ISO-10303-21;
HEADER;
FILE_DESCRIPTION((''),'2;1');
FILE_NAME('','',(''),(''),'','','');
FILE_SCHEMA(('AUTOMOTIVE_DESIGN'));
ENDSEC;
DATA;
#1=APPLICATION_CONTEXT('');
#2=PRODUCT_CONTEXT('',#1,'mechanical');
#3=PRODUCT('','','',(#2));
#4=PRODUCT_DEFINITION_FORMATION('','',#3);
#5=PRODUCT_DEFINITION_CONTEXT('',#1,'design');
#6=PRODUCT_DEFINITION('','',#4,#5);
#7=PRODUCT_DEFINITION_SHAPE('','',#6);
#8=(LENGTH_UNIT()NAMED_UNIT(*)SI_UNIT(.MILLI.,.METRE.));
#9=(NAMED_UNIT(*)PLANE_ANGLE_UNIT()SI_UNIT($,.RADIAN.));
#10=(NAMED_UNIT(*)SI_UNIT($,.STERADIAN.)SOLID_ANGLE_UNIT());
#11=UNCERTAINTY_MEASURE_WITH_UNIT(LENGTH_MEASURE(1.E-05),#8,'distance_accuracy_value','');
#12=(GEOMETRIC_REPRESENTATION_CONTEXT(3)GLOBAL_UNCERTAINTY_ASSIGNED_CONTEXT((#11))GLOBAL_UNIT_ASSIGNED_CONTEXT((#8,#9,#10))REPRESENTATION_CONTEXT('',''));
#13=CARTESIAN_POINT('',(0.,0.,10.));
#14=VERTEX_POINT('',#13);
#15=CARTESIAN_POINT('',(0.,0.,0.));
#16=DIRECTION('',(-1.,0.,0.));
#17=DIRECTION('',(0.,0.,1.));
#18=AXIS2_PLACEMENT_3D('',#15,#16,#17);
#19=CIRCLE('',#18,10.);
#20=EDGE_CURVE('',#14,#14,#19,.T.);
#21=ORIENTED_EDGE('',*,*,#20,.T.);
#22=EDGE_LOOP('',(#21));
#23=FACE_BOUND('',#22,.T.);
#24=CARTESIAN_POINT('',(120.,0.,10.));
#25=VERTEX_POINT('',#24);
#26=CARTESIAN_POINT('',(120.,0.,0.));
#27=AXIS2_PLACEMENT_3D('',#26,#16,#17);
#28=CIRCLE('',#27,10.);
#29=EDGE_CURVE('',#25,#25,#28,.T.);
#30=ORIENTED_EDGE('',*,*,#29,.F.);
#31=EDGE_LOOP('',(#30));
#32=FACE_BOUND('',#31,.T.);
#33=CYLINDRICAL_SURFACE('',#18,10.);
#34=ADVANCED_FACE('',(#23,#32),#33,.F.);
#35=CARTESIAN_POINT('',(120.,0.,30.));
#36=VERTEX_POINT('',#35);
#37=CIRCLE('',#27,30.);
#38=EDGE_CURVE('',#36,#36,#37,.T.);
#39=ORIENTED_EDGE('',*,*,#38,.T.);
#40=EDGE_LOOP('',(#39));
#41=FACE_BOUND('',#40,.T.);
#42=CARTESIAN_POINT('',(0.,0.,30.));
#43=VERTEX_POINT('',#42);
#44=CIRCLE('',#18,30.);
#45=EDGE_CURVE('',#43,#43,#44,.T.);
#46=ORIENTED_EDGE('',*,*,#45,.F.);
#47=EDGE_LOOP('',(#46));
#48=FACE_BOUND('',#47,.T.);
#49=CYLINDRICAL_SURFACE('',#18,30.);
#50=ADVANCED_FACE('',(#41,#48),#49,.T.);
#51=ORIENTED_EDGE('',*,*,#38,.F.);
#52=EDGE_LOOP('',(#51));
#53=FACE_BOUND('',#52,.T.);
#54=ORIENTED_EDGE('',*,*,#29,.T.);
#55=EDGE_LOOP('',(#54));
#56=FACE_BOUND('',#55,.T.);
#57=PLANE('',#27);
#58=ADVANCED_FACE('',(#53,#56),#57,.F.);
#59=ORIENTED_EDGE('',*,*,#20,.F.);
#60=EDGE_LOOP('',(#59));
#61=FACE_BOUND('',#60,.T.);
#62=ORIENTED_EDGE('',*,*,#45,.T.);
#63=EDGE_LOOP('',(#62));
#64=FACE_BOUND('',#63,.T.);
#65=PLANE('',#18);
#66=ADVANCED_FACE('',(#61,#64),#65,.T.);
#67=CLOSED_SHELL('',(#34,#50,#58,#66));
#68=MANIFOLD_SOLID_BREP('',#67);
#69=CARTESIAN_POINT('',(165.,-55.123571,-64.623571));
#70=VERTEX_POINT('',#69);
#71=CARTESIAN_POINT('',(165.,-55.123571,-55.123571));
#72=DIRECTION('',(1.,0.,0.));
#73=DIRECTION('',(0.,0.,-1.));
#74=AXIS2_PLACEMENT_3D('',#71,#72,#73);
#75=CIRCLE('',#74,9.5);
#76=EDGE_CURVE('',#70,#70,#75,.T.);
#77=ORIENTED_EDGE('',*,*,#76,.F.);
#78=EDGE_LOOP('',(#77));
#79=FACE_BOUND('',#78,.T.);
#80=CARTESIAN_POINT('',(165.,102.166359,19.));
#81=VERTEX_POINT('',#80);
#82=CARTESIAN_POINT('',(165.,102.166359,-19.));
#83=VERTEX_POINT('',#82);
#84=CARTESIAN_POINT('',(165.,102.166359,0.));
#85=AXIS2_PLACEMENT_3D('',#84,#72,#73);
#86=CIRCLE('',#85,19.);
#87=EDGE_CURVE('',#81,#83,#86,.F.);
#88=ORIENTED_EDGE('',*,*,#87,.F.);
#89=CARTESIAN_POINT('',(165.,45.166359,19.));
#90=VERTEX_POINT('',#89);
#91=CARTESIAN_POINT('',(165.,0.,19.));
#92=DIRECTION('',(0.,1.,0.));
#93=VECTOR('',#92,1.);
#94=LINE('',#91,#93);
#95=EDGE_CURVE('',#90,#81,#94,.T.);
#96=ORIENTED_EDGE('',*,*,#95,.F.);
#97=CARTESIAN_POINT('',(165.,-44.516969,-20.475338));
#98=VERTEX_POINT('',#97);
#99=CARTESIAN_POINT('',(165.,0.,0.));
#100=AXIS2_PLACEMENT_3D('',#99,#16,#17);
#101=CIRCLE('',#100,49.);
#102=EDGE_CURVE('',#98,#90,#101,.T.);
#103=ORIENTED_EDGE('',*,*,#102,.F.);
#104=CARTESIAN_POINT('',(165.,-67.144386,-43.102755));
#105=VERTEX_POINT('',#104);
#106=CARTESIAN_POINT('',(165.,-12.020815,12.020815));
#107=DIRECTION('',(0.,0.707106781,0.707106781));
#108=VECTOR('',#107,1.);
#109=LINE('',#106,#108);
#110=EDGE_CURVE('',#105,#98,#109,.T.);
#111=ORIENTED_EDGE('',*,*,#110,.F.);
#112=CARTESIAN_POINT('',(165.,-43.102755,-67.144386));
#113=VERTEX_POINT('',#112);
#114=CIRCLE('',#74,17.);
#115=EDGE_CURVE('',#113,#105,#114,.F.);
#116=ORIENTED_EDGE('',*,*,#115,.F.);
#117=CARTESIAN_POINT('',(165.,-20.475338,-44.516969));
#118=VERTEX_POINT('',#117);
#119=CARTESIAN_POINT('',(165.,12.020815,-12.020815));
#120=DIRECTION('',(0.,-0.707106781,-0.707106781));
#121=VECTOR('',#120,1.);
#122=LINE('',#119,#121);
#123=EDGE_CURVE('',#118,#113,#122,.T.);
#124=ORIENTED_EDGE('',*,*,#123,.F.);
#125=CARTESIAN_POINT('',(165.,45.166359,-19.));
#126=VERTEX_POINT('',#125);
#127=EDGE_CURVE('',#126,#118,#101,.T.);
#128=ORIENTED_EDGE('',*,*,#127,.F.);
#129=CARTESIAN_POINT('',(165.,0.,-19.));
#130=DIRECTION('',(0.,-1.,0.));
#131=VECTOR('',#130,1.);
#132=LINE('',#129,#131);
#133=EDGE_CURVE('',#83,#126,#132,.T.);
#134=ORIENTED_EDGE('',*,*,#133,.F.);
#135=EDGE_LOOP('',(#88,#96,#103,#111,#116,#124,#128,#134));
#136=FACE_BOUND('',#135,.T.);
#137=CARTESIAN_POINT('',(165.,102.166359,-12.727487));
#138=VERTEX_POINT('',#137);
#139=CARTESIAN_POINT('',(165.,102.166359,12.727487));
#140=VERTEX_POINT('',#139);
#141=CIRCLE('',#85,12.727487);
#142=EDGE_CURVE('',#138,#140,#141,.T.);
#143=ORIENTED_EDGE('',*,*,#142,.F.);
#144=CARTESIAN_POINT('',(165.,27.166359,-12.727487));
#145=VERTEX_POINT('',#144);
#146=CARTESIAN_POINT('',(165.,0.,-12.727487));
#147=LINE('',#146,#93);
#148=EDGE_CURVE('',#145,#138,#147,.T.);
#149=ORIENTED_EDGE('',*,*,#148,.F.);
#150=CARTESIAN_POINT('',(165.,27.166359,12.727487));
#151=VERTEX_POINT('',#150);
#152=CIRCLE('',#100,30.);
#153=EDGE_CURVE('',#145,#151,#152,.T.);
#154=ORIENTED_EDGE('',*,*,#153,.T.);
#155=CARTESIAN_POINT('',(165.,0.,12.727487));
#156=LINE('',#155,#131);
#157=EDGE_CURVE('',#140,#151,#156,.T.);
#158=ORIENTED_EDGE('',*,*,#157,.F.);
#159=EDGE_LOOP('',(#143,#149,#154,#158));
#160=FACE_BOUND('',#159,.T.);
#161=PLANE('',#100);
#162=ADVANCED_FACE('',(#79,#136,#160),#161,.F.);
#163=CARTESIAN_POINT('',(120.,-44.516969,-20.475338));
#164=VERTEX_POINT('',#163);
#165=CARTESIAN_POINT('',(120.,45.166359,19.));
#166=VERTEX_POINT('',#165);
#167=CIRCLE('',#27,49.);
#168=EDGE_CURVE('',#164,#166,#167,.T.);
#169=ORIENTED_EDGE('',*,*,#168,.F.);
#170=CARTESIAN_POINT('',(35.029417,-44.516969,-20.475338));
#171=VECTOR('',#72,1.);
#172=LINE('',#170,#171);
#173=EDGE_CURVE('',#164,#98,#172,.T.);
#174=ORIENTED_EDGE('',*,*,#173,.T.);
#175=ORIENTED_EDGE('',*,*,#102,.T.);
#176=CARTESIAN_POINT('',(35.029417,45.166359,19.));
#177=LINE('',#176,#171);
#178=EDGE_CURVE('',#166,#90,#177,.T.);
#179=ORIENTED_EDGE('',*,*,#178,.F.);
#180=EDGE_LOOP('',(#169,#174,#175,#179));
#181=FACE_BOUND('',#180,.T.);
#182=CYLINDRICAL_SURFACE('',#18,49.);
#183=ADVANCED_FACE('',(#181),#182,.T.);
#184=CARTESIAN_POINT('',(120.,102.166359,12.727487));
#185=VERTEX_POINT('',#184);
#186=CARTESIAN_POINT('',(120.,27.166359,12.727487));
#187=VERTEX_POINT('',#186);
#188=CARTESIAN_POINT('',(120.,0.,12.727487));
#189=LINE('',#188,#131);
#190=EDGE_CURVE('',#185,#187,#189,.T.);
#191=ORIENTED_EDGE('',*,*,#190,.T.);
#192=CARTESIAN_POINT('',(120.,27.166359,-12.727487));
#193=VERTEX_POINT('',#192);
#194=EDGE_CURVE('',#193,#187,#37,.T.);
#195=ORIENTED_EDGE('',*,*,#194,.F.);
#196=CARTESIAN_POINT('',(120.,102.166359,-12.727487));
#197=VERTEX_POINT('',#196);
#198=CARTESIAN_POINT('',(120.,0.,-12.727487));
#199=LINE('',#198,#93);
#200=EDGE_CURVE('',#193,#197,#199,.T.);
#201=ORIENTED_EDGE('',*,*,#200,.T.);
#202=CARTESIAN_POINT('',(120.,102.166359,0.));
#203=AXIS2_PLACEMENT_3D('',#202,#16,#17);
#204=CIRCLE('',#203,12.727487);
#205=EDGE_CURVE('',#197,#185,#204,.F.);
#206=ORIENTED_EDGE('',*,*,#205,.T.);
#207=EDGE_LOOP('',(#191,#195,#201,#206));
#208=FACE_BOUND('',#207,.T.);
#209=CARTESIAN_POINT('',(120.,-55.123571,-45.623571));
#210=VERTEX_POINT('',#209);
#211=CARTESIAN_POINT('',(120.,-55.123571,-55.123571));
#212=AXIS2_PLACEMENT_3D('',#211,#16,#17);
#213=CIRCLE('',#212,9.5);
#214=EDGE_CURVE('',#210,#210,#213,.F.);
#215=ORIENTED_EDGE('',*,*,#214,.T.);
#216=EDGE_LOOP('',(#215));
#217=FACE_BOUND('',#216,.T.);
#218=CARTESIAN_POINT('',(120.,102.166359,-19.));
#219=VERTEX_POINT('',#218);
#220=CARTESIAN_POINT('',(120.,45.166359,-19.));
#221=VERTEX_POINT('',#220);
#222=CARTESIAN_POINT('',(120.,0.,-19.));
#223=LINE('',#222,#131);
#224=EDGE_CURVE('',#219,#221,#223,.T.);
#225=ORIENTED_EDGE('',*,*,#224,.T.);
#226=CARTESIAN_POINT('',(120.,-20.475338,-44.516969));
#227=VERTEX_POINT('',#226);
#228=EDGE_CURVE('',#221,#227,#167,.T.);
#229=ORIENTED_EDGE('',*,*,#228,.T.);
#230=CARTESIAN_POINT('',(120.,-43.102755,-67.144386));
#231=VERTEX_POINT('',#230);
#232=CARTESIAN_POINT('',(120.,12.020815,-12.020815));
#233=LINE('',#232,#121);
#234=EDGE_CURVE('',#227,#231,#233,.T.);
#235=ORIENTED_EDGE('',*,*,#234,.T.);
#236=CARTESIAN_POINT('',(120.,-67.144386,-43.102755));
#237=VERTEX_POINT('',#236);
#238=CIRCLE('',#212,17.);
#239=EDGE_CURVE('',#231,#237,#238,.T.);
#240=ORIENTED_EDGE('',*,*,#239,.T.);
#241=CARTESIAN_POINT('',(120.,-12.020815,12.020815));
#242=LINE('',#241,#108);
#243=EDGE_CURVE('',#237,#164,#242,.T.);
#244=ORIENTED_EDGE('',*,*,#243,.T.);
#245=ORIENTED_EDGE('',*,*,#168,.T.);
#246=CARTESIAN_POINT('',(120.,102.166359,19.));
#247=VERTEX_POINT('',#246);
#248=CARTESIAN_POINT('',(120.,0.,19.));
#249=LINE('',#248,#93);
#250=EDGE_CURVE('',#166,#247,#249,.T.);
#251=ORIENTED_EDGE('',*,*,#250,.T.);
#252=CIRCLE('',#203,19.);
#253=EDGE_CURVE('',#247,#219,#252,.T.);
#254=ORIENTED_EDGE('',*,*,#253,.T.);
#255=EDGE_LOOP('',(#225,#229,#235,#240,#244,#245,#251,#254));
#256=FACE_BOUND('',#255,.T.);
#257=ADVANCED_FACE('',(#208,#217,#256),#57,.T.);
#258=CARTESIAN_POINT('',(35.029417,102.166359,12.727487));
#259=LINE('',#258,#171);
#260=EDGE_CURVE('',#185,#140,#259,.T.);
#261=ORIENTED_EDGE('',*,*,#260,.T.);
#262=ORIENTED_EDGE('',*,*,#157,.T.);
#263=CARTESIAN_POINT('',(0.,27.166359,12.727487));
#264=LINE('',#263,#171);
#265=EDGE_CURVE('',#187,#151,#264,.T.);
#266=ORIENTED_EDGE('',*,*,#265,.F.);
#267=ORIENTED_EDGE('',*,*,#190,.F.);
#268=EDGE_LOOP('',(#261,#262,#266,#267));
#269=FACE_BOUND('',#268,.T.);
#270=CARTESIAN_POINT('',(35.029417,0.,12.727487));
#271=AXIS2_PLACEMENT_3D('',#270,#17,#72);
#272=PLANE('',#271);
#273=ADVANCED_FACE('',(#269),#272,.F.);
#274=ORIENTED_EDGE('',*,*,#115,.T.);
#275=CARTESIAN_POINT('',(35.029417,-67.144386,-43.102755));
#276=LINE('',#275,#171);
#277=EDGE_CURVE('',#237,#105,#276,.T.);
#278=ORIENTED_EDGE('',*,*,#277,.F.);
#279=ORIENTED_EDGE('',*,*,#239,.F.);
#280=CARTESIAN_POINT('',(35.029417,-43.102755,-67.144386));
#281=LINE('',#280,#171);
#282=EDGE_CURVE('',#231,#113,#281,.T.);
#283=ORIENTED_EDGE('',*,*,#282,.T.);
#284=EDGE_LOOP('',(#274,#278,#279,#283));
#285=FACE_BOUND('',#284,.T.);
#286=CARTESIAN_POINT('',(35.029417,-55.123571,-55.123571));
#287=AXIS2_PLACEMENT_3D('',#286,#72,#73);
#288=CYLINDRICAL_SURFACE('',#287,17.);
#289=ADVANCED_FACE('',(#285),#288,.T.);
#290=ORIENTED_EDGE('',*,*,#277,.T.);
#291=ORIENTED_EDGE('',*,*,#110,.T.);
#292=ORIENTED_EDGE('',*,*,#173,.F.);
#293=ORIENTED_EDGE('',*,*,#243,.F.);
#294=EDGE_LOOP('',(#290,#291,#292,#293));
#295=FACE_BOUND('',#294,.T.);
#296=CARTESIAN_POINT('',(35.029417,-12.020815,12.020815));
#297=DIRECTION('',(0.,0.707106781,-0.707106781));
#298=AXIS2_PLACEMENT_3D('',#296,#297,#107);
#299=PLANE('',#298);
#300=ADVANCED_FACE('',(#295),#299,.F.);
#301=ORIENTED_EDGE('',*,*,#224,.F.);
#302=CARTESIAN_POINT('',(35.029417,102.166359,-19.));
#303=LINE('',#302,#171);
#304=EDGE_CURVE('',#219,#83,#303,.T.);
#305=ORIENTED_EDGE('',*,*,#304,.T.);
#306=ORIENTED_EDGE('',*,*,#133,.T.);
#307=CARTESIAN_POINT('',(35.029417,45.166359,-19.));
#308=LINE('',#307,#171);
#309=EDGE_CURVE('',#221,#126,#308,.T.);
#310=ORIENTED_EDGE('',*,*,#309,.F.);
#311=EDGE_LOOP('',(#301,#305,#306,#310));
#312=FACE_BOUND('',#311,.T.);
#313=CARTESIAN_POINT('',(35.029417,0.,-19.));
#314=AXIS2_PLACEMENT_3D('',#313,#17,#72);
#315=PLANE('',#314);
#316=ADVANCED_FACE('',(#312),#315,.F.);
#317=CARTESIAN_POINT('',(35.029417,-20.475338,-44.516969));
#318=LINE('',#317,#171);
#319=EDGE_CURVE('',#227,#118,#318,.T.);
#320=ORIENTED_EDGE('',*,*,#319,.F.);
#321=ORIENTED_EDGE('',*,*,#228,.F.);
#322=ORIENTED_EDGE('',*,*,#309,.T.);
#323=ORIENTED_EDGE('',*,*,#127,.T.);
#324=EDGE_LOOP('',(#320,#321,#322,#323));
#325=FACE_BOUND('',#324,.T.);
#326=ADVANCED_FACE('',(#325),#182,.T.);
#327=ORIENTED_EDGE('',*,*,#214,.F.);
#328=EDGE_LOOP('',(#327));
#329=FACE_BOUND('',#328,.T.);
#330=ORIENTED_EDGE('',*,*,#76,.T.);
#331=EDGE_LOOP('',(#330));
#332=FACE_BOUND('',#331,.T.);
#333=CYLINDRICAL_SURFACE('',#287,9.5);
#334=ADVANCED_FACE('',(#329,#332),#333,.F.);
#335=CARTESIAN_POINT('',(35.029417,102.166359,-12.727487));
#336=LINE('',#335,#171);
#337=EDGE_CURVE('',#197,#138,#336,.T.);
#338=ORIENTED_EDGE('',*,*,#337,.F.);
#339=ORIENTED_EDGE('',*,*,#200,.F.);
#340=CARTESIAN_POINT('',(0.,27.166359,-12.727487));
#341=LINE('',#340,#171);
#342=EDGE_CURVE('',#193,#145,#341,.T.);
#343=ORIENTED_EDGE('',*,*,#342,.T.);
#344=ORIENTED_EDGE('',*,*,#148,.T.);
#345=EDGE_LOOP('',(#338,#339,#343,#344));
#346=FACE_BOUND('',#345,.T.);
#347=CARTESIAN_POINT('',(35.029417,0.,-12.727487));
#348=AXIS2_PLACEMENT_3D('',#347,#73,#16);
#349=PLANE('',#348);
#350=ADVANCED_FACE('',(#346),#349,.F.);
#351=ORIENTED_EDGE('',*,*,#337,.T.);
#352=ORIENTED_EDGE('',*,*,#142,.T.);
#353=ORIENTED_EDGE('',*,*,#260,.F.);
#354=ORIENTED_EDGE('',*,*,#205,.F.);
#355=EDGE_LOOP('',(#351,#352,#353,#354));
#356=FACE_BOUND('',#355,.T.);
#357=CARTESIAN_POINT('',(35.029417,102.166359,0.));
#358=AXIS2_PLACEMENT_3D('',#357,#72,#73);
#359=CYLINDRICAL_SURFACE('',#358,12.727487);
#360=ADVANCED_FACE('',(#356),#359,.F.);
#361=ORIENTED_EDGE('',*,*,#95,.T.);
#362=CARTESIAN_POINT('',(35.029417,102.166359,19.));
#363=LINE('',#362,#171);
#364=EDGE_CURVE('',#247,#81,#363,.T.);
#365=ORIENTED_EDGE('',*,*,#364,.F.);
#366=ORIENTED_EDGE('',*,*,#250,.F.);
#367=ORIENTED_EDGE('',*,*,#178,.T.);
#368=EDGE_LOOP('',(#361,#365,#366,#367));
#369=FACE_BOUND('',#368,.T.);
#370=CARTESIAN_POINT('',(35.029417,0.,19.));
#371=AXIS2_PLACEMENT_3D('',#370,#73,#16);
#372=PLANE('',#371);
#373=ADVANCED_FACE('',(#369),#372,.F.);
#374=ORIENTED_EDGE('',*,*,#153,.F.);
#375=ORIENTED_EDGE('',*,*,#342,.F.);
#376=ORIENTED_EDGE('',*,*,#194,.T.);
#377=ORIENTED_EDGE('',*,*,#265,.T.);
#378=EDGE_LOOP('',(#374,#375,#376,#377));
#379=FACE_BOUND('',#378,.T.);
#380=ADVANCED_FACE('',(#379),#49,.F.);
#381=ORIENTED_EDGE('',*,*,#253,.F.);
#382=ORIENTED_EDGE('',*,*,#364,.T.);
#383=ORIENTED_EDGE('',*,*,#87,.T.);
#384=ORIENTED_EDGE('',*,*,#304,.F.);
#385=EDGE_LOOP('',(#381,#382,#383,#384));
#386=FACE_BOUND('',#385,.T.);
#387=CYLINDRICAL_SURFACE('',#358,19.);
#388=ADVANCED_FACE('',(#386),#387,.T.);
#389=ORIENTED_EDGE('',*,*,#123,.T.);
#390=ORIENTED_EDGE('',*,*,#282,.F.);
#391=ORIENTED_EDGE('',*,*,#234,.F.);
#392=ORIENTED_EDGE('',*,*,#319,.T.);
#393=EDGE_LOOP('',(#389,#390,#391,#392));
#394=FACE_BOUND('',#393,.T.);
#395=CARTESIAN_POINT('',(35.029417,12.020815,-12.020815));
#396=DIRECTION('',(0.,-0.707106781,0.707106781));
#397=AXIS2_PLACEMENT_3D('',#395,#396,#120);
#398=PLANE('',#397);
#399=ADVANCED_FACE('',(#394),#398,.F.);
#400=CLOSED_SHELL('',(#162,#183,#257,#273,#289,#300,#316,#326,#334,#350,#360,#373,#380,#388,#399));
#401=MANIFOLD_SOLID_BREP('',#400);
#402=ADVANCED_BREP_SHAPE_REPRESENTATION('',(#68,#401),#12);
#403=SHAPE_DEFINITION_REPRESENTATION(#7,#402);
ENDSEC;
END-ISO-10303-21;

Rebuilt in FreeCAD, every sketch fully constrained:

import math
import FreeCAD as App
import Part
import Sketcher
Q = App.Units.Quantity


def add_polygon(sketch, points):
    """Adds a closed chain of lines whose ends are joined by coincident constraints."""
    first, n = sketch.GeometryCount, len(points)
    for a, b in zip(points, points[1:] + points[:1]):
        sketch.addGeometry(Part.LineSegment(App.Vector(*a, 0), App.Vector(*b, 0)), False)
    for i in range(n):
        sketch.addConstraint(Sketcher.Constraint("Coincident", first + i, 2, first + (i + 1) % n, 1))

doc = App.newDocument("Part")
body = doc.addObject("PartDesign::Body", "Body")
body.AllowCompound = True

# Sketch on XY plane
sketch1 = body.newObject("Sketcher::SketchObject", "Sketch")
sketch1.AttachmentSupport = (doc.getObject("XY_Plane"), [""])
sketch1.MapMode = "FlatFace"
add_polygon(sketch1, [(0, -10), (0, -30), (120, -30), (120, -10)])  # lines 0-3
add_polygon(sketch1, [(120, -30), (120, -49), (165, -49), (165, -30)])  # lines 4-7
sketch1.addConstraint(Sketcher.Constraint("Vertical", 0))
sketch1.addConstraint(Sketcher.Constraint("Horizontal", 1))
sketch1.addConstraint(Sketcher.Constraint("Vertical", 2))
sketch1.addConstraint(Sketcher.Constraint("Horizontal", 3))
sketch1.addConstraint(Sketcher.Constraint("Vertical", 4))
sketch1.addConstraint(Sketcher.Constraint("Horizontal", 5))
sketch1.addConstraint(Sketcher.Constraint("Vertical", 6))
sketch1.addConstraint(Sketcher.Constraint("Horizontal", 7))
sketch1.addConstraint(Sketcher.Constraint("Coincident", 7, 2, 1, 2))
sketch1.addConstraint(Sketcher.Constraint("PointOnObject", 0, 2, -2))
sketch1.addConstraint(Sketcher.Constraint("DistanceX", 1, 1, 1, 2, 120.0))
sketch1.addConstraint(Sketcher.Constraint("DistanceX", 5, 1, 5, 2, 45.0))
sketch1.addConstraint(Sketcher.Constraint("DistanceY", 0, 2, 0, 1, 20.0))
sketch1.addConstraint(Sketcher.Constraint("DistanceY", 4, 2, 4, 1, 19.0))
sketch1.addConstraint(Sketcher.Constraint("DistanceY", 0, 2, -1, 1, 30.0))
revolution = body.newObject("PartDesign::Revolution", "Revolution")
revolution.Profile = sketch1
revolution.ReferenceAxis = (sketch1, ["H_Axis"])
revolution.Angle = 360

# Sketch on YZ plane
sketch2 = body.newObject("Sketcher::SketchObject", "Sketch001")
sketch2.AttachmentSupport = (doc.getObject("YZ_Plane"), [""])
sketch2.MapMode = "FlatFace"
sketch2.AttachmentOffset = App.Placement(App.Vector(0, 0, 165), App.Rotation())
sketch2.addGeometry(Part.LineSegment(App.Vector(102, 19, 0), App.Vector(45, 19, 0)), False)
sketch2.addGeometry(Part.ArcOfCircle(Part.Circle(App.Vector(0, 0, 0), App.Vector(0, 0, 1), 49), math.radians(15.05), math.radians(22.81)), False)
sketch2.addGeometry(Part.LineSegment(App.Vector(47, 13, 0), App.Vector(102, 13, 0)), False)
sketch2.addGeometry(Part.ArcOfCircle(Part.Circle(App.Vector(102, 0, 0), App.Vector(0, 0, 1), 13), math.radians(-90), math.radians(90)), False)
sketch2.addGeometry(Part.LineSegment(App.Vector(102, -13, 0), App.Vector(47, -13, 0)), False)
sketch2.addGeometry(Part.ArcOfCircle(Part.Circle(App.Vector(0, 0, 0), App.Vector(0, 0, 1), 49), math.radians(-22.81), math.radians(-15.05)), False)
sketch2.addGeometry(Part.LineSegment(App.Vector(45, -19, 0), App.Vector(102, -19, 0)), False)
sketch2.addGeometry(Part.ArcOfCircle(Part.Circle(App.Vector(102, 0, 0), App.Vector(0, 0, 1), 19), math.radians(-90), math.radians(90)), False)
sketch2.addGeometry(Part.ArcOfCircle(Part.Circle(App.Vector(0, 0, 0), App.Vector(0, 0, 1), 49), math.radians(-155), math.radians(-115)), False)
sketch2.addGeometry(Part.LineSegment(App.Vector(-45, -20, 0), App.Vector(-67, -43, 0)), False)
sketch2.addGeometry(Part.ArcOfCircle(Part.Circle(App.Vector(-55, -55, 0), App.Vector(0, 0, 1), 17), math.radians(135), math.radians(315)), False)
sketch2.addGeometry(Part.LineSegment(App.Vector(-43, -67, 0), App.Vector(-20, -45, 0)), False)
sketch2.addGeometry(Part.Circle(App.Vector(-55, -55, 0), App.Vector(0, 0, 1), 10), False)
sketch2.addConstraint(Sketcher.Constraint("Coincident", 0, 2, 1, 2))
sketch2.addConstraint(Sketcher.Constraint("Coincident", 1, 1, 2, 1))
sketch2.addConstraint(Sketcher.Constraint("Tangent", 2, 2, 3, 2))
sketch2.addConstraint(Sketcher.Constraint("Tangent", 3, 1, 4, 1))
sketch2.addConstraint(Sketcher.Constraint("Coincident", 4, 2, 5, 2))
sketch2.addConstraint(Sketcher.Constraint("Coincident", 5, 1, 6, 1))
sketch2.addConstraint(Sketcher.Constraint("Tangent", 6, 2, 7, 1))
sketch2.addConstraint(Sketcher.Constraint("Tangent", 7, 2, 0, 1))
sketch2.addConstraint(Sketcher.Constraint("Coincident", 8, 1, 9, 1))
sketch2.addConstraint(Sketcher.Constraint("Tangent", 9, 2, 10, 1))
sketch2.addConstraint(Sketcher.Constraint("Tangent", 10, 2, 11, 1))
sketch2.addConstraint(Sketcher.Constraint("Coincident", 11, 2, 8, 2))
sketch2.addConstraint(Sketcher.Constraint("Horizontal", 0))
sketch2.addConstraint(Sketcher.Constraint("Horizontal", 2))
sketch2.addConstraint(Sketcher.Constraint("Horizontal", 4))
sketch2.addConstraint(Sketcher.Constraint("Horizontal", 6))
sketch2.addConstraint(Sketcher.Constraint("Coincident", 1, 3, -1, 1))
sketch2.addConstraint(Sketcher.Constraint("Coincident", 5, 3, -1, 1))
sketch2.addConstraint(Sketcher.Constraint("Coincident", 8, 3, -1, 1))
sketch2.addConstraint(Sketcher.Constraint("Coincident", 7, 3, 3, 3))
sketch2.addConstraint(Sketcher.Constraint("Coincident", 12, 3, 10, 3))
sketch2.addConstraint(Sketcher.Constraint("Equal", 1, 5))
sketch2.addConstraint(Sketcher.Constraint("Equal", 5, 8))
sketch2.addConstraint(Sketcher.Constraint("PointOnObject", 3, 3, -1))
sketch2.addConstraint(Sketcher.Constraint("Parallel", 9, 11))
sketch2.addConstraint(Sketcher.Constraint("Equal", 9, 11))
sketch2.addConstraint(Sketcher.Constraint("Diameter", 12, 19.0))
sketch2.addConstraint(Sketcher.Constraint("Radius", 1, 49.0))
sketch2.addConstraint(Sketcher.Constraint("Radius", 7, 19.0))
sketch2.addConstraint(Sketcher.Constraint("Radius", 10, 17.0))
sketch2.addConstraint(Sketcher.Constraint("DistanceX", 0, 2, 0, 1, 57.0))
sketch2.addConstraint(Sketcher.Constraint("Angle", 9, Q("-135 deg")))
sketch2.addConstraint(Sketcher.Constraint("Distance", 9, 32.0))
sketch2.addConstraint(Sketcher.Constraint("Radius", 3, 12.727487))
pad1 = body.newObject("PartDesign::Pad", "Pad")
pad1.Profile = sketch2
pad1.Length = 45
pad1.Reversed = True

# Sketch on YZ plane
sketch3 = body.newObject("Sketcher::SketchObject", "Sketch002")
sketch3.AttachmentSupport = (doc.getObject("YZ_Plane"), [""])
sketch3.MapMode = "FlatFace"
sketch3.AttachmentOffset = App.Placement(App.Vector(0, 0, 165), App.Rotation())
sketch3.addGeometry(Part.ArcOfCircle(Part.Circle(App.Vector(0, 0, 0), App.Vector(0, 0, 1), 49), math.radians(-15), math.radians(15)), False)
sketch3.addGeometry(Part.LineSegment(App.Vector(47, 13, 0), App.Vector(27, 13, 0)), False)
sketch3.addGeometry(Part.ArcOfCircle(Part.Circle(App.Vector(0, 0, 0), App.Vector(0, 0, 1), 30), math.radians(-25), math.radians(25)), False)
sketch3.addGeometry(Part.LineSegment(App.Vector(27, -13, 0), App.Vector(47, -13, 0)), False)
sketch3.addConstraint(Sketcher.Constraint("Coincident", 0, 2, 1, 1))
sketch3.addConstraint(Sketcher.Constraint("Coincident", 1, 2, 2, 2))
sketch3.addConstraint(Sketcher.Constraint("Coincident", 2, 1, 3, 1))
sketch3.addConstraint(Sketcher.Constraint("Coincident", 3, 2, 0, 1))
sketch3.addConstraint(Sketcher.Constraint("Horizontal", 1))
sketch3.addConstraint(Sketcher.Constraint("Horizontal", 3))
sketch3.addConstraint(Sketcher.Constraint("Coincident", 0, 3, -1, 1))
sketch3.addConstraint(Sketcher.Constraint("Coincident", 2, 3, -1, 1))
sketch3.addConstraint(Sketcher.Constraint("Vertical", 1, 2, 2, 1))
sketch3.addConstraint(Sketcher.Constraint("Radius", 0, 49.0))
sketch3.addConstraint(Sketcher.Constraint("Radius", 2, 30.0))
sketch3.addConstraint(Sketcher.Constraint("DistanceX", 1, 2, 1, 1, 20.15183))
pocket1 = body.newObject("PartDesign::Pocket", "Pocket")
pocket1.Profile = sketch3
pocket1.Type = "ThroughAll"

doc.recompute()
